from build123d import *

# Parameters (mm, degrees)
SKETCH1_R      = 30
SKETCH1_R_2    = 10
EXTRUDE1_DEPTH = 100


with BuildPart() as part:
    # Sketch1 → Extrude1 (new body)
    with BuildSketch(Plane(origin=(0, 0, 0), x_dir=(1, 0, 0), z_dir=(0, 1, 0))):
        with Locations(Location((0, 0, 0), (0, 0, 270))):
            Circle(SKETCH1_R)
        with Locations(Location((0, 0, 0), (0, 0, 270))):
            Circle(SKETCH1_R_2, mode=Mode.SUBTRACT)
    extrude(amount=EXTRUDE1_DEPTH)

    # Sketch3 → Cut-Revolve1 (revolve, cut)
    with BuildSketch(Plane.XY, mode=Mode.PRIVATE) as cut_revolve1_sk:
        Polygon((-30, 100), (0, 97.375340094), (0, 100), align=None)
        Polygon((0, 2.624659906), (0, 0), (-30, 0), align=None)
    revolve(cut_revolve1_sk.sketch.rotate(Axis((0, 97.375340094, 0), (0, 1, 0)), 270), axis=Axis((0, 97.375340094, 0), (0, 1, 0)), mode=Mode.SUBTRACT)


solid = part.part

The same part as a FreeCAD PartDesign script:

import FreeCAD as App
import Part
import Sketcher
Q = App.Units.Quantity


def add_polygon(sketch, points):
    """Adds a closed chain of lines whose ends are joined by coincident constraints."""
    first, n = sketch.GeometryCount, len(points)
    for a, b in zip(points, points[1:] + points[:1]):
        sketch.addGeometry(Part.LineSegment(App.Vector(*a, 0), App.Vector(*b, 0)), False)
    for i in range(n):
        sketch.addConstraint(Sketcher.Constraint("Coincident", first + i, 2, first + (i + 1) % n, 1))

doc = App.newDocument("Part")
body = doc.addObject("PartDesign::Body", "Body")

# Sketch on XZ plane
sketch1 = doc.addObject("Sketcher::SketchObject", "Sketch")
body.addObject(sketch1)
sketch1.AttachmentSupport = (doc.XZ_Plane, [""])
sketch1.MapMode = "FlatFace"
sketch1.addGeometry(Part.Circle(App.Vector(0, 0, 0), App.Vector(0, 0, 1), 30), False)
sketch1.addGeometry(Part.Circle(App.Vector(0, 0, 0), App.Vector(0, 0, 1), 10), False)
sketch1.addConstraint(Sketcher.Constraint("Coincident", 0, 3, -1, 1))
sketch1.addConstraint(Sketcher.Constraint("Coincident", 1, 3, -1, 1))
sketch1.addConstraint(Sketcher.Constraint("Diameter", 0, 60.0))
sketch1.addConstraint(Sketcher.Constraint("Diameter", 1, 20.0))
pad1 = doc.addObject("PartDesign::Pad", "Pad")
body.addObject(pad1)
pad1.Profile = sketch1
pad1.Length = 100
pad1.Reversed = True

# Sketch on XY plane
sketch2 = doc.addObject("Sketcher::SketchObject", "Sketch001")
body.addObject(sketch2)
sketch2.AttachmentSupport = (doc.XY_Plane, [""])
sketch2.MapMode = "FlatFace"
add_polygon(sketch2, [(-30, 100), (0, 97.4), (0, 100)])  # lines 0-2
add_polygon(sketch2, [(0, 0), (0, 2.6), (-30, 0)])  # lines 3-5
sketch2.addConstraint(Sketcher.Constraint("Vertical", 1))
sketch2.addConstraint(Sketcher.Constraint("Horizontal", 2))
sketch2.addConstraint(Sketcher.Constraint("Vertical", 3))
sketch2.addConstraint(Sketcher.Constraint("Horizontal", 5))
sketch2.addConstraint(Sketcher.Constraint("Coincident", 5, 2, -1, 1))
sketch2.addConstraint(Sketcher.Constraint("PointOnObject", 0, 2, -2))
sketch2.addConstraint(Sketcher.Constraint("Vertical", 2, 2, 4, 2))
sketch2.addConstraint(Sketcher.Constraint("Equal", 1, 3))
sketch2.addConstraint(Sketcher.Constraint("DistanceX", 2, 2, 2, 1, 30.0))
sketch2.addConstraint(Sketcher.Constraint("Angle", 0, Q("-5 deg")))
sketch2.addConstraint(Sketcher.Constraint("DistanceY", -1, 1, 1, 2, 100.0))
groove = doc.addObject("PartDesign::Groove", "Groove")
body.addObject(groove)
groove.Profile = sketch2
groove.ReferenceAxis = (sketch2, ["V_Axis"])
groove.Angle = 360

doc.recompute()
